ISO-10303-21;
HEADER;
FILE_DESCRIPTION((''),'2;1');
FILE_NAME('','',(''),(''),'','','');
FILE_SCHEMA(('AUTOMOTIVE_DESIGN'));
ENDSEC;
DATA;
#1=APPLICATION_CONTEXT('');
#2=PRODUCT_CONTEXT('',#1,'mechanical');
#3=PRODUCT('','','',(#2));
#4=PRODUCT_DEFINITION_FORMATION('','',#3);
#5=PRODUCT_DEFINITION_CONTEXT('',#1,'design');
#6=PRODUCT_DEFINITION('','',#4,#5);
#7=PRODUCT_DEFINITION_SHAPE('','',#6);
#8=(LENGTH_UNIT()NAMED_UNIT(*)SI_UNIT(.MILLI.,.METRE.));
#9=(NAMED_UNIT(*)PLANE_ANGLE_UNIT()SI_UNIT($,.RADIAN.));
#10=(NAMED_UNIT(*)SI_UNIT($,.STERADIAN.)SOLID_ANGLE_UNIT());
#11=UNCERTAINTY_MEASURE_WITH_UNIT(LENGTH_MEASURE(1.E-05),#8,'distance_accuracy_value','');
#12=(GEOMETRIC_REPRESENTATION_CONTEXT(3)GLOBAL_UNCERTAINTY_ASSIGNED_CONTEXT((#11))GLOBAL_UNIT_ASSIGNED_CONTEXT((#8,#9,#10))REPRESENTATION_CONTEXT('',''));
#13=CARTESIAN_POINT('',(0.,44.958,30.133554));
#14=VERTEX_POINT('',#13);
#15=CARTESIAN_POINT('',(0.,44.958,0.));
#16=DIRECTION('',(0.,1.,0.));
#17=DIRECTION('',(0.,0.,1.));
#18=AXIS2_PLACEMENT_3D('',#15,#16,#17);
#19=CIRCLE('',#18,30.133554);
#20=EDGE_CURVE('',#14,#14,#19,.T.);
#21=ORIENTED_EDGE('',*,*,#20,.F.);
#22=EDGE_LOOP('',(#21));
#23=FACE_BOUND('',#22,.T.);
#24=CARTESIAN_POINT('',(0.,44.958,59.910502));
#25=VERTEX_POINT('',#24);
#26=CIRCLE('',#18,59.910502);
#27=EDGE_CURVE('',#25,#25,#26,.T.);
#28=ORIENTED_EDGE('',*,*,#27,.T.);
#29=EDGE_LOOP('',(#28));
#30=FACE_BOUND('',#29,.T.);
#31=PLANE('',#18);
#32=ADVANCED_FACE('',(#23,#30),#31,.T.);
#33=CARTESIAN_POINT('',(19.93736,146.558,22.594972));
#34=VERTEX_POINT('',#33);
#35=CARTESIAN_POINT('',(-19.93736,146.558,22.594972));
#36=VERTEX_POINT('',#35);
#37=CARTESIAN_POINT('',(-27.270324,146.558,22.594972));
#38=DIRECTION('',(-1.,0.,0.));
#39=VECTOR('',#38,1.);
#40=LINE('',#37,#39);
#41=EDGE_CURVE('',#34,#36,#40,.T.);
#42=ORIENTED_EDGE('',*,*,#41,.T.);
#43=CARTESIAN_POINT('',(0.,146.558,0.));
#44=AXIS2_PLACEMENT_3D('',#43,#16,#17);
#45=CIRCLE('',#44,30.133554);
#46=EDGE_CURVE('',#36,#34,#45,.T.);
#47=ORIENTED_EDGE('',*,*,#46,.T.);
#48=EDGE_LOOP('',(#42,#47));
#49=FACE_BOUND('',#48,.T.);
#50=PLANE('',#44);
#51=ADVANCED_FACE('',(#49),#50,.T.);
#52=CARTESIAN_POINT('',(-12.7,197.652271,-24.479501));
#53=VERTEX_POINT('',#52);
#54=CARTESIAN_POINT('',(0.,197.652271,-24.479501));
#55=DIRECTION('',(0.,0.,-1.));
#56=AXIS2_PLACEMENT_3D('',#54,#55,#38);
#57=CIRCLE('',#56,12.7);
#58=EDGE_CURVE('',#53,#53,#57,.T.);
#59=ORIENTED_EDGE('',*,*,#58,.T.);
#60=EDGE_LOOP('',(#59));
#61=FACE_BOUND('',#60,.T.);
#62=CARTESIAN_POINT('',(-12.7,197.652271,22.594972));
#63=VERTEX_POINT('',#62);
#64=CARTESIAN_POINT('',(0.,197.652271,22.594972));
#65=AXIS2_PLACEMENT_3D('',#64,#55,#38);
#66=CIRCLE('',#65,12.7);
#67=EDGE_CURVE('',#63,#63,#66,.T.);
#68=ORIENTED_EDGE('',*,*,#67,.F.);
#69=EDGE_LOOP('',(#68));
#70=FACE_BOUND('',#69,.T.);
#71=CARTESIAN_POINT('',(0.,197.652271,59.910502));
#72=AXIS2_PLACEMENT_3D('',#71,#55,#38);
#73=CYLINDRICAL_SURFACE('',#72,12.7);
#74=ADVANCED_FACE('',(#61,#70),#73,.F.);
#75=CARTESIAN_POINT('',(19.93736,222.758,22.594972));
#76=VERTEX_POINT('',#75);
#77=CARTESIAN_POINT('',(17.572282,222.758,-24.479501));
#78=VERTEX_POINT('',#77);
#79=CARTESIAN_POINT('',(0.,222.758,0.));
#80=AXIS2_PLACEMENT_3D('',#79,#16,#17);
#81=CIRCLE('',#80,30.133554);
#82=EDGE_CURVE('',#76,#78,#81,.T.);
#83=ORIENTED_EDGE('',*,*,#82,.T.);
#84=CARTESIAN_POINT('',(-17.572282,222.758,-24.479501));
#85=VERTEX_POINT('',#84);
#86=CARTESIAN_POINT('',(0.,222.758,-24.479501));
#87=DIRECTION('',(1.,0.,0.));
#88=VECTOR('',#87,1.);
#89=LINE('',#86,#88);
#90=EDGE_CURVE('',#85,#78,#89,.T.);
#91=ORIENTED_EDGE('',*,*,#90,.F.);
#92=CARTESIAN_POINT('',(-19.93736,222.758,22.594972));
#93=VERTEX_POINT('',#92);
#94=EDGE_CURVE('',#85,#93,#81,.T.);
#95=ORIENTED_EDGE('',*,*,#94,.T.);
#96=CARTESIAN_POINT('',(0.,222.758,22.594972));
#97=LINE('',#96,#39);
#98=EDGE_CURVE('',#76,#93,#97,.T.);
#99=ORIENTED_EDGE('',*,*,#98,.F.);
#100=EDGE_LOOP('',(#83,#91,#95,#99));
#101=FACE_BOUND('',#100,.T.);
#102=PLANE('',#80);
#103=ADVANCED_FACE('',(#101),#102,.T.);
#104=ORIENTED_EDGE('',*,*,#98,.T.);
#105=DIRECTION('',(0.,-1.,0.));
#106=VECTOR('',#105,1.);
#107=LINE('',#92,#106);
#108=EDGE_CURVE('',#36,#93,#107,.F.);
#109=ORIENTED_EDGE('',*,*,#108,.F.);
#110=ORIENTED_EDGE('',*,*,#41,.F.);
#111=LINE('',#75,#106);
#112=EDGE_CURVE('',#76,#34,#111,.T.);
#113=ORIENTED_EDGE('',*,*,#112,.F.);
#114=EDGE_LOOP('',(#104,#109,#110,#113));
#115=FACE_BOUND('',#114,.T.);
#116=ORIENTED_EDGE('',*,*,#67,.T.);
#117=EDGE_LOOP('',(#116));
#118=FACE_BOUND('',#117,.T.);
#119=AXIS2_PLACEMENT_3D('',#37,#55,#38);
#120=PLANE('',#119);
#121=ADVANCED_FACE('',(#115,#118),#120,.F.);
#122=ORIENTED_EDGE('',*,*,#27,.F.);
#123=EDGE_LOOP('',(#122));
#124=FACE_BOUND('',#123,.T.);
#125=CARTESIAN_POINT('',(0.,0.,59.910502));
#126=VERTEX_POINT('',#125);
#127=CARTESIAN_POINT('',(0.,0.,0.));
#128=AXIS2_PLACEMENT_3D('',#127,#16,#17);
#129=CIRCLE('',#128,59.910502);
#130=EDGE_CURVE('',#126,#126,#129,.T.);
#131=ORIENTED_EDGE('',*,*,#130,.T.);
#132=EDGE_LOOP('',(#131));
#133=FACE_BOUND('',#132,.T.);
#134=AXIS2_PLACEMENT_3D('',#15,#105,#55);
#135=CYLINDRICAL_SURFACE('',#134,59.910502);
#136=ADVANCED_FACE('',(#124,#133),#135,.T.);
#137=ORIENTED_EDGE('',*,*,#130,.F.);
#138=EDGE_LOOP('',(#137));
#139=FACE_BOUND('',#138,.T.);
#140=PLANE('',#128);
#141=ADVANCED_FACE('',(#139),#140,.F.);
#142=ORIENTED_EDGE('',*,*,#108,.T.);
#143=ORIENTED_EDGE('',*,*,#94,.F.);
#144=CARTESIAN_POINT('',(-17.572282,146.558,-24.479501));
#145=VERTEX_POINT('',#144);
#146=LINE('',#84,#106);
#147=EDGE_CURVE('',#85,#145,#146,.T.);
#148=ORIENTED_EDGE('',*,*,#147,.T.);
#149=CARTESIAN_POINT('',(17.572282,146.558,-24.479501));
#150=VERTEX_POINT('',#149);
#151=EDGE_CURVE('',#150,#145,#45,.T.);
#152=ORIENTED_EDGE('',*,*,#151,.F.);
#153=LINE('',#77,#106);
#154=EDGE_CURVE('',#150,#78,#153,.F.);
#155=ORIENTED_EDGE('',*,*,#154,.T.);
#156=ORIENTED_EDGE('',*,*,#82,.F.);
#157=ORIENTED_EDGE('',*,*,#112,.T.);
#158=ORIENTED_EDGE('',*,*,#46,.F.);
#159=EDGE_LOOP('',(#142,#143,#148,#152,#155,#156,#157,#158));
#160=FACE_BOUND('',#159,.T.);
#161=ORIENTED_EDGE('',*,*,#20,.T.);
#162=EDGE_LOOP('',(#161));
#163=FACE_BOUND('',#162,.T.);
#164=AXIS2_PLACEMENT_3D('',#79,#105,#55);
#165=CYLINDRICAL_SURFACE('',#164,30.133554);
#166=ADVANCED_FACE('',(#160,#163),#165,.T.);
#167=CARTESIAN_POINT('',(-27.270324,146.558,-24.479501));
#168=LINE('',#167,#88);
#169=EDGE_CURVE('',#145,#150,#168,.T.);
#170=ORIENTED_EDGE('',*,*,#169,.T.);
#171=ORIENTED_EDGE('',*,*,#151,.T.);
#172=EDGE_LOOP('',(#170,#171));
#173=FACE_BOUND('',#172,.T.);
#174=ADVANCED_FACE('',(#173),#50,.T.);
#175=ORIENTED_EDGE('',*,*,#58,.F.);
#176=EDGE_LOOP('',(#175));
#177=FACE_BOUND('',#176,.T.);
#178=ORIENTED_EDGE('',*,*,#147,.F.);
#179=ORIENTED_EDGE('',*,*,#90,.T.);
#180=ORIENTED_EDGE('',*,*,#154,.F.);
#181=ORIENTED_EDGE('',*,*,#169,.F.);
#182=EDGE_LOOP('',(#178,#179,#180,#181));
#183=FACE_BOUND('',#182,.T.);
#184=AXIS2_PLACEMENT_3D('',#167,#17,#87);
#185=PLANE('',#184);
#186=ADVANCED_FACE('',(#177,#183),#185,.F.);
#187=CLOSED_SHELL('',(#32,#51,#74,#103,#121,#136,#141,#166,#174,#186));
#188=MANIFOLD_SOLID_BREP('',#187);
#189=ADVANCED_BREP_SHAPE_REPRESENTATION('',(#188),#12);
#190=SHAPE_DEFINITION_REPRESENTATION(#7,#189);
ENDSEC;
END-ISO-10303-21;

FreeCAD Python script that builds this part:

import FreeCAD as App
import Part
import Sketcher
from FreeCAD import Vector
Q = App.Units.Quantity


def add_polygon(sketch, points):
    """Adds a closed chain of lines whose ends are joined by coincident constraints."""
    first, n = sketch.GeometryCount, len(points)
    for a, b in zip(points, points[1:] + points[:1]):
        sketch.addGeometry(Part.LineSegment(App.Vector(*a, 0), App.Vector(*b, 0)), False)
    for i in range(n):
        sketch.addConstraint(Sketcher.Constraint("Coincident", first + i, 2, first + (i + 1) % n, 1))

doc = App.newDocument("Part")
body = doc.addObject("PartDesign::Body", "Body")

sketch1 = body.newObject("Sketcher::SketchObject", "Sketch")
sketch1.AttachmentSupport = (doc.getObject("XZ_Plane"), [""])
sketch1.MapMode = "FlatFace"
sketch1.addGeometry(Part.Circle(Vector(0, 0, 0), Vector(0, 0, 1), 60), False)
sketch1.addConstraint(Sketcher.Constraint("Coincident", 0, 3, -1, 1))
sketch1.addConstraint(Sketcher.Constraint("Diameter", 0, 119.821005))
pad1 = body.newObject("PartDesign::Pad", "Pad")
pad1.Profile = sketch1
pad1.Length = Q("1.77 in")
pad1.Reversed = True

sketch2 = body.newObject("Sketcher::SketchObject", "Sketch001")
sketch2.AttachmentSupport = (doc.getObject("XZ_Plane"), [""])
sketch2.MapMode = "FlatFace"
sketch2.AttachmentOffset = App.Placement(Vector(0, 0, -1.77 * 25.4), App.Rotation())
sketch2.addGeometry(Part.Circle(Vector(0, 0, 0), Vector(0, 0, 1), 30), False)
sketch2.addConstraint(Sketcher.Constraint("Coincident", 0, 3, -1, 1))
sketch2.addConstraint(Sketcher.Constraint("Diameter", 0, 60.267109))
pad2 = body.newObject("PartDesign::Pad", "Pad001")
pad2.Profile = sketch2
pad2.Length = Q("7 in")
pad2.Reversed = True

sketch3 = body.newObject("Sketcher::SketchObject", "Sketch002")
sketch3.AttachmentSupport = (doc.getObject("XZ_Plane"), [""])
sketch3.MapMode = "FlatFace"
sketch3.AttachmentOffset = App.Placement(Vector(0, 0, -8.77 * 25.4), App.Rotation())
add_polygon(sketch3, [(-27, -36), (-27, -24), (27, -24), (27, -36)])
add_polygon(sketch3, [(-27, 23), (-27, 38), (27, 38), (27, 23)])
sketch3.addConstraint(Sketcher.Constraint("Vertical", 0))
sketch3.addConstraint(Sketcher.Constraint("Horizontal", 1))
sketch3.addConstraint(Sketcher.Constraint("Vertical", 2))
sketch3.addConstraint(Sketcher.Constraint("Horizontal", 3))
sketch3.addConstraint(Sketcher.Constraint("Vertical", 4))
sketch3.addConstraint(Sketcher.Constraint("Horizontal", 5))
sketch3.addConstraint(Sketcher.Constraint("Vertical", 6))
sketch3.addConstraint(Sketcher.Constraint("Horizontal", 7))
sketch3.addConstraint(Sketcher.Constraint("Vertical", 3, 2, 4, 2))
sketch3.addConstraint(Sketcher.Constraint("Vertical", 2, 2, 5, 2))
sketch3.addConstraint(Sketcher.Constraint("DistanceX", 1, 1, 1, 2, 54.540648))
sketch3.addConstraint(Sketcher.Constraint("DistanceY", 0, 2, -1, 1, 24.479501))
sketch3.addConstraint(Sketcher.Constraint("DistanceY", 0, 1, 0, 2, 11.308106))
sketch3.addConstraint(Sketcher.Constraint("DistanceY", 4, 1, 4, 2, 15.077165))
sketch3.addConstraint(Sketcher.Constraint("DistanceY", -1, 1, 6, 2, 22.594972))
sketch3.addConstraint(Sketcher.Constraint("DistanceX", 0, 2, -1, 1, 27.270324))
pocket1 = body.newObject("PartDesign::Pocket", "Pocket")
pocket1.Profile = sketch3
pocket1.Length = Q("3 in")
pocket1.Reversed = True

sketch4 = body.newObject("Sketcher::SketchObject", "Sketch003")
sketch4.AttachmentSupport = (doc.getObject("XY_Plane"), [""])
sketch4.MapMode = "FlatFace"
sketch4.AttachmentOffset = App.Placement(Vector(0, 0, -24.479501), App.Rotation())
sketch4.addGeometry(Part.Circle(Vector(0, 198, 0), Vector(0, 0, 1), 13), False)
sketch4.addConstraint(Sketcher.Constraint("PointOnObject", 0, 3, -2))
sketch4.addConstraint(Sketcher.Constraint("Diameter", 0, Q("1 in")))
sketch4.addConstraint(Sketcher.Constraint("DistanceY", -1, 1, 0, 3, 197.652271))
pocket2 = body.newObject("PartDesign::Pocket", "Pocket001")
pocket2.Profile = sketch4
pocket2.Type = "ThroughAll"
pocket2.Reversed = True

doc.recompute()
